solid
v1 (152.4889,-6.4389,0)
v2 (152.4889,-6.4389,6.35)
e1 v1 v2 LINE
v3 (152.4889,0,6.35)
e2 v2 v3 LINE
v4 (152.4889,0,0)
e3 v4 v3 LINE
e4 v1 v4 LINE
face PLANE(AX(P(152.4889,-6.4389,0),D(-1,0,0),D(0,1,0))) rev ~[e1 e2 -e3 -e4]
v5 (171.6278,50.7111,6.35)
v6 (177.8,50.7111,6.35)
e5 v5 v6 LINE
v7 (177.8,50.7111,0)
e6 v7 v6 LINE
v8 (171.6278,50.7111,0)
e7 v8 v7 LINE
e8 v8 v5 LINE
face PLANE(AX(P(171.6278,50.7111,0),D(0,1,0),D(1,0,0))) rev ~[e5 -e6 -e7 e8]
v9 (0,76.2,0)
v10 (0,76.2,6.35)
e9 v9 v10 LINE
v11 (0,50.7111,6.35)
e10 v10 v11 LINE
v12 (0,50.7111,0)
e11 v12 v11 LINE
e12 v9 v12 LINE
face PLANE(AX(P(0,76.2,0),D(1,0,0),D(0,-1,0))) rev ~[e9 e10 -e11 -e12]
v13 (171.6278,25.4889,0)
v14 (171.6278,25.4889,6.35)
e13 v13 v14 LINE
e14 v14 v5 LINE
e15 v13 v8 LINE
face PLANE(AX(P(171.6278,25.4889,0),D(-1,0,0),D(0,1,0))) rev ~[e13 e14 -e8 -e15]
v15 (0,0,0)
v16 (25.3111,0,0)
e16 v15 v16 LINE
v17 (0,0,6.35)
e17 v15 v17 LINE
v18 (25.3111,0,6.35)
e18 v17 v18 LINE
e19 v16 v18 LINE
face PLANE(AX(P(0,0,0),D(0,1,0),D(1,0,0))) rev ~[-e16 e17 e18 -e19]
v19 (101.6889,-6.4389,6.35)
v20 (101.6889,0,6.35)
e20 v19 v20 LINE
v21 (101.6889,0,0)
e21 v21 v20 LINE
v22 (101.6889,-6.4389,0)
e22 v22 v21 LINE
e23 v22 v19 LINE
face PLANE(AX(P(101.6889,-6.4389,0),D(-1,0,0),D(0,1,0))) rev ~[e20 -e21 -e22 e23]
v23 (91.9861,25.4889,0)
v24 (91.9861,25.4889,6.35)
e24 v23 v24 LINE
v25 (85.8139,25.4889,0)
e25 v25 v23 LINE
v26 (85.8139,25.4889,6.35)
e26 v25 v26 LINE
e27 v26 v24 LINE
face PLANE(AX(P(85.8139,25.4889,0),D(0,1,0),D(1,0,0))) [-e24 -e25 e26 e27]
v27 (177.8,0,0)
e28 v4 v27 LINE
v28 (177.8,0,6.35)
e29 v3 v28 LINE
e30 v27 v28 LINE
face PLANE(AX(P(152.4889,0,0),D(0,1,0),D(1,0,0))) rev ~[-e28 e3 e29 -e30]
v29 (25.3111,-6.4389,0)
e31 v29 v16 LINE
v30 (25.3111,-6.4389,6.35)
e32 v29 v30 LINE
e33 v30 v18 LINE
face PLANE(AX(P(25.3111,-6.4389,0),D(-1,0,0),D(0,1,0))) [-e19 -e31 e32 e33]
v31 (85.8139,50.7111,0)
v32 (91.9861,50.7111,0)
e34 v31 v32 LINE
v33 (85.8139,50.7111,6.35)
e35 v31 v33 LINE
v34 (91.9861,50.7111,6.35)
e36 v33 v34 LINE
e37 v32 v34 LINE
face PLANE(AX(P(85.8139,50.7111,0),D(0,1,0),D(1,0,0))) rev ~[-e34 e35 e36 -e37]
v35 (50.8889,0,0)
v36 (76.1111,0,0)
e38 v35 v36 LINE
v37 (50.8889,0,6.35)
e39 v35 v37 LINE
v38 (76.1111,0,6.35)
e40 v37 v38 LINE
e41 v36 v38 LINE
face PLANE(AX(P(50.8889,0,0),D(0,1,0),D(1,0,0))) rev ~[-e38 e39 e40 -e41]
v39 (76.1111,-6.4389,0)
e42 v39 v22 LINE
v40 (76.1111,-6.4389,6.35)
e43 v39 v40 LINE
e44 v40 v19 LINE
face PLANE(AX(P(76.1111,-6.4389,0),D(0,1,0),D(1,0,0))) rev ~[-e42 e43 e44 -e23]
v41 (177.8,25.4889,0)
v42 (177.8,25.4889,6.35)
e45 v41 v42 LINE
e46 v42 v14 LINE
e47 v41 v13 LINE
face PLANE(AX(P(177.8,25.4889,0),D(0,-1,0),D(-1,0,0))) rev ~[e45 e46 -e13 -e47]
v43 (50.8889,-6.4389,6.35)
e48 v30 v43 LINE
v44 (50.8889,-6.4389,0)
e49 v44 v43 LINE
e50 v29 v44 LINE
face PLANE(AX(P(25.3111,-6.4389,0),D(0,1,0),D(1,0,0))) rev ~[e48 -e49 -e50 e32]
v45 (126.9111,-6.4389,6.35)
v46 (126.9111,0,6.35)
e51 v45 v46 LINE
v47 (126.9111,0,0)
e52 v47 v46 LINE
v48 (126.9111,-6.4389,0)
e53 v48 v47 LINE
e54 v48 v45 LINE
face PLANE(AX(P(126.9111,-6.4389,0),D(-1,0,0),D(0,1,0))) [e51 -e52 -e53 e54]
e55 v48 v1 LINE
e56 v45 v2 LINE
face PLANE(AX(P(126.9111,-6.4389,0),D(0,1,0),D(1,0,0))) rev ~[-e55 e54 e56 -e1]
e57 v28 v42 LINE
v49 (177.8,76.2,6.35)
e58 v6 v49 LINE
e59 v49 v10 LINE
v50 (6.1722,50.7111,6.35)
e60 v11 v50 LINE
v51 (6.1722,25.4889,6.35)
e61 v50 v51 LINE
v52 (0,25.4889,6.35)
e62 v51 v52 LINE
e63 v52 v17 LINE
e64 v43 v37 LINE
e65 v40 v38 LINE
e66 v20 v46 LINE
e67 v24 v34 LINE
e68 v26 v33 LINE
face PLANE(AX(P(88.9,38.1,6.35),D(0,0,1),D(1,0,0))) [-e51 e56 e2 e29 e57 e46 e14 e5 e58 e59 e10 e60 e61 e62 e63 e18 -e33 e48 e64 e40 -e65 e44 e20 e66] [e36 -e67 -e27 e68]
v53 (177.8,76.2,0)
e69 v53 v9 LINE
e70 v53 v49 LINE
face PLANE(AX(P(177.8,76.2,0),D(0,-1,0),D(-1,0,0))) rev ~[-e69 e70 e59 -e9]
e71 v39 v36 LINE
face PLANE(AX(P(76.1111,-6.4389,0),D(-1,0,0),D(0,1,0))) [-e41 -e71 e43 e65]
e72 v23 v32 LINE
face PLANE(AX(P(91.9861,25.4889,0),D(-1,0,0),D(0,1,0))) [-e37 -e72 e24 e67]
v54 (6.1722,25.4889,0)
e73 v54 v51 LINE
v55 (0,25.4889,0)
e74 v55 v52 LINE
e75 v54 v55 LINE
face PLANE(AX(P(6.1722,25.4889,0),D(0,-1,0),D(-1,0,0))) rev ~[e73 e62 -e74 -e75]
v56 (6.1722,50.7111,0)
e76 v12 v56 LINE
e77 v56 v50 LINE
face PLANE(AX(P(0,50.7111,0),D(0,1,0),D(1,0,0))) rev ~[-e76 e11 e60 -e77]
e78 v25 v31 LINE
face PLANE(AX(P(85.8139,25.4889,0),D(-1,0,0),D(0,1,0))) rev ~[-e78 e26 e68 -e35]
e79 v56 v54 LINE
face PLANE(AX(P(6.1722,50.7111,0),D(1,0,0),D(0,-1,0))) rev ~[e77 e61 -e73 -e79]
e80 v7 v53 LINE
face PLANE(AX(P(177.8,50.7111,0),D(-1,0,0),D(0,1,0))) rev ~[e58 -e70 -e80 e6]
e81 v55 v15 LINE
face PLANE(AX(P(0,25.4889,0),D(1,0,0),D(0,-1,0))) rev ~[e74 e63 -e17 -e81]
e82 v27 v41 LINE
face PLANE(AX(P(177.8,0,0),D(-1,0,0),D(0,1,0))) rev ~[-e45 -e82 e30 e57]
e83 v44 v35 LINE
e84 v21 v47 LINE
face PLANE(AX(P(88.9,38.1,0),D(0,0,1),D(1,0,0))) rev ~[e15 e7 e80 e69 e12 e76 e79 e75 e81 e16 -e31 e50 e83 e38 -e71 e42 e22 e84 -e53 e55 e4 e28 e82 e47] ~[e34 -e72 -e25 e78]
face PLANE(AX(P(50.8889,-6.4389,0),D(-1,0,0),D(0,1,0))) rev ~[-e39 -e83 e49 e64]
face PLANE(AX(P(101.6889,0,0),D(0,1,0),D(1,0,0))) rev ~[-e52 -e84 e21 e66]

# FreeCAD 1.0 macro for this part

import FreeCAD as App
import Part
import Sketcher
Q = App.Units.Quantity


def add_polygon(sketch, points):
    """Adds a closed chain of lines whose ends are joined by coincident constraints."""
    first, n = sketch.GeometryCount, len(points)
    for a, b in zip(points, points[1:] + points[:1]):
        sketch.addGeometry(Part.LineSegment(App.Vector(*a, 0), App.Vector(*b, 0)), False)
    for i in range(n):
        sketch.addConstraint(Sketcher.Constraint("Coincident", first + i, 2, first + (i + 1) % n, 1))

doc = App.newDocument("Part")
params = doc.addObject("Spreadsheet::Sheet", "Params")
for row, (alias, value) in enumerate([
    ("sketch1_width", "7 in"),
    ("sketch1_width2", "1.007 in"),
    ("sketch1_width3", "0.243 in"),
    ("pad1_length", "0.25 in"),
], start=1):
    params.set(f"A{row}", alias)
    params.set(f"B{row}", "=" + value)
    params.setAlias(f"B{row}", alias)

body = doc.addObject("PartDesign::Body", "Body")

# Sketch on XY plane
sketch1 = body.newObject("Sketcher::SketchObject", "Sketch")
sketch1.AttachmentSupport = (doc.getObject("XY_Plane"), [""])
sketch1.MapMode = "FlatFace"
add_polygon(sketch1, [(0, 25), (0, 0), (25, 0), (25, -6), (51, -6), (51, 0), (76, 0), (76, -6), (102, -6), (102, 0), (127, 0), (127, -6), (152, -6), (152, 0), (178, 0), (178, 25), (172, 25), (172, 51), (178, 51), (178, 76), (0, 76), (0, 51), (6, 51), (6, 25)])  # lines 0-23
add_polygon(sketch1, [(92, 25), (86, 25), (86, 51), (92, 51)])  # lines 24-27
sketch1.addConstraint([
    Sketcher.Constraint("Vertical", 0),
    Sketcher.Constraint("Horizontal", 1),
    Sketcher.Constraint("Vertical", 2),
    Sketcher.Constraint("Horizontal", 3),
    Sketcher.Constraint("Vertical", 4),
    Sketcher.Constraint("Horizontal", 5),
    Sketcher.Constraint("Vertical", 6),
    Sketcher.Constraint("Horizontal", 7),
    Sketcher.Constraint("Vertical", 8),
    Sketcher.Constraint("Horizontal", 9),
    Sketcher.Constraint("Vertical", 10),
    Sketcher.Constraint("Horizontal", 11),
    Sketcher.Constraint("Vertical", 12),
    Sketcher.Constraint("Horizontal", 13),
    Sketcher.Constraint("Vertical", 14),
    Sketcher.Constraint("Horizontal", 15),
    Sketcher.Constraint("Vertical", 16),
    Sketcher.Constraint("Horizontal", 17),
    Sketcher.Constraint("Vertical", 18),
    Sketcher.Constraint("Horizontal", 19),
    Sketcher.Constraint("Vertical", 20),
    Sketcher.Constraint("Horizontal", 21),
    Sketcher.Constraint("Vertical", 22),
    Sketcher.Constraint("Horizontal", 23),
    Sketcher.Constraint("Horizontal", 24),
    Sketcher.Constraint("Vertical", 25),
    Sketcher.Constraint("Horizontal", 26),
    Sketcher.Constraint("Vertical", 27),
    Sketcher.Constraint("Coincident", 0, 2, -1, 1),
    Sketcher.Constraint("PointOnObject", 4, 2, -1),
    Sketcher.Constraint("PointOnObject", 8, 2, -1),
    Sketcher.Constraint("PointOnObject", 12, 2, -1),
    Sketcher.Constraint("PointOnObject", 19, 2, -2),
    Sketcher.Constraint("Horizontal", 3, 2, 6, 2),
    Sketcher.Constraint("Horizontal", 7, 2, 10, 2),
    Sketcher.Constraint("Horizontal", 17, 2, 20, 2),
    Sketcher.Constraint("Horizontal", 15, 2, 22, 2),
    Sketcher.Constraint("Horizontal", 23, 2, 24, 2),
    Sketcher.Constraint("Horizontal", 21, 2, 25, 2),
    Sketcher.Constraint("Vertical", 14, 2, 17, 2),
    Sketcher.Constraint("Equal", 3, 7),
    Sketcher.Constraint("Equal", 5, 9),
    Sketcher.Constraint("Equal", 7, 11),
    Sketcher.Constraint("Equal", 1, 13),
    Sketcher.Constraint("Equal", 17, 21),
    Sketcher.Constraint("Equal", 23, 24),
    Sketcher.Constraint("Equal", 9, 16),
    Sketcher.Constraint("Equal", 14, 18),
    Sketcher.Constraint("DistanceX", 19, 2, 19, 1, Q("7 in")),
    Sketcher.Constraint("DistanceY", -1, 1, 18, 2, Q("3 in")),
    Sketcher.Constraint("DistanceX", 1, 2, 5, 2, Q("2 in")),
    Sketcher.Constraint("DistanceX", 3, 1, 3, 2, Q("1.007 in")),
    Sketcher.Constraint("DistanceX", 15, 2, 15, 1, Q("0.243 in")),
    Sketcher.Constraint("DistanceY", 11, 2, 16, 2, Q("2.25 in")),
    Sketcher.Constraint("DistanceX", 5, 2, 24, 2, Q("0.382 in")),
])
sketch1.setExpression("Constraints[76]", "Params.sketch1_width")
sketch1.setExpression("Constraints[79]", "Params.sketch1_width2")
sketch1.setExpression("Constraints[80]", "Params.sketch1_width3")
pad1 = body.newObject("PartDesign::Pad", "Pad")
pad1.Profile = sketch1
pad1.setExpression("Length", "Params.pad1_length")

doc.recompute()
